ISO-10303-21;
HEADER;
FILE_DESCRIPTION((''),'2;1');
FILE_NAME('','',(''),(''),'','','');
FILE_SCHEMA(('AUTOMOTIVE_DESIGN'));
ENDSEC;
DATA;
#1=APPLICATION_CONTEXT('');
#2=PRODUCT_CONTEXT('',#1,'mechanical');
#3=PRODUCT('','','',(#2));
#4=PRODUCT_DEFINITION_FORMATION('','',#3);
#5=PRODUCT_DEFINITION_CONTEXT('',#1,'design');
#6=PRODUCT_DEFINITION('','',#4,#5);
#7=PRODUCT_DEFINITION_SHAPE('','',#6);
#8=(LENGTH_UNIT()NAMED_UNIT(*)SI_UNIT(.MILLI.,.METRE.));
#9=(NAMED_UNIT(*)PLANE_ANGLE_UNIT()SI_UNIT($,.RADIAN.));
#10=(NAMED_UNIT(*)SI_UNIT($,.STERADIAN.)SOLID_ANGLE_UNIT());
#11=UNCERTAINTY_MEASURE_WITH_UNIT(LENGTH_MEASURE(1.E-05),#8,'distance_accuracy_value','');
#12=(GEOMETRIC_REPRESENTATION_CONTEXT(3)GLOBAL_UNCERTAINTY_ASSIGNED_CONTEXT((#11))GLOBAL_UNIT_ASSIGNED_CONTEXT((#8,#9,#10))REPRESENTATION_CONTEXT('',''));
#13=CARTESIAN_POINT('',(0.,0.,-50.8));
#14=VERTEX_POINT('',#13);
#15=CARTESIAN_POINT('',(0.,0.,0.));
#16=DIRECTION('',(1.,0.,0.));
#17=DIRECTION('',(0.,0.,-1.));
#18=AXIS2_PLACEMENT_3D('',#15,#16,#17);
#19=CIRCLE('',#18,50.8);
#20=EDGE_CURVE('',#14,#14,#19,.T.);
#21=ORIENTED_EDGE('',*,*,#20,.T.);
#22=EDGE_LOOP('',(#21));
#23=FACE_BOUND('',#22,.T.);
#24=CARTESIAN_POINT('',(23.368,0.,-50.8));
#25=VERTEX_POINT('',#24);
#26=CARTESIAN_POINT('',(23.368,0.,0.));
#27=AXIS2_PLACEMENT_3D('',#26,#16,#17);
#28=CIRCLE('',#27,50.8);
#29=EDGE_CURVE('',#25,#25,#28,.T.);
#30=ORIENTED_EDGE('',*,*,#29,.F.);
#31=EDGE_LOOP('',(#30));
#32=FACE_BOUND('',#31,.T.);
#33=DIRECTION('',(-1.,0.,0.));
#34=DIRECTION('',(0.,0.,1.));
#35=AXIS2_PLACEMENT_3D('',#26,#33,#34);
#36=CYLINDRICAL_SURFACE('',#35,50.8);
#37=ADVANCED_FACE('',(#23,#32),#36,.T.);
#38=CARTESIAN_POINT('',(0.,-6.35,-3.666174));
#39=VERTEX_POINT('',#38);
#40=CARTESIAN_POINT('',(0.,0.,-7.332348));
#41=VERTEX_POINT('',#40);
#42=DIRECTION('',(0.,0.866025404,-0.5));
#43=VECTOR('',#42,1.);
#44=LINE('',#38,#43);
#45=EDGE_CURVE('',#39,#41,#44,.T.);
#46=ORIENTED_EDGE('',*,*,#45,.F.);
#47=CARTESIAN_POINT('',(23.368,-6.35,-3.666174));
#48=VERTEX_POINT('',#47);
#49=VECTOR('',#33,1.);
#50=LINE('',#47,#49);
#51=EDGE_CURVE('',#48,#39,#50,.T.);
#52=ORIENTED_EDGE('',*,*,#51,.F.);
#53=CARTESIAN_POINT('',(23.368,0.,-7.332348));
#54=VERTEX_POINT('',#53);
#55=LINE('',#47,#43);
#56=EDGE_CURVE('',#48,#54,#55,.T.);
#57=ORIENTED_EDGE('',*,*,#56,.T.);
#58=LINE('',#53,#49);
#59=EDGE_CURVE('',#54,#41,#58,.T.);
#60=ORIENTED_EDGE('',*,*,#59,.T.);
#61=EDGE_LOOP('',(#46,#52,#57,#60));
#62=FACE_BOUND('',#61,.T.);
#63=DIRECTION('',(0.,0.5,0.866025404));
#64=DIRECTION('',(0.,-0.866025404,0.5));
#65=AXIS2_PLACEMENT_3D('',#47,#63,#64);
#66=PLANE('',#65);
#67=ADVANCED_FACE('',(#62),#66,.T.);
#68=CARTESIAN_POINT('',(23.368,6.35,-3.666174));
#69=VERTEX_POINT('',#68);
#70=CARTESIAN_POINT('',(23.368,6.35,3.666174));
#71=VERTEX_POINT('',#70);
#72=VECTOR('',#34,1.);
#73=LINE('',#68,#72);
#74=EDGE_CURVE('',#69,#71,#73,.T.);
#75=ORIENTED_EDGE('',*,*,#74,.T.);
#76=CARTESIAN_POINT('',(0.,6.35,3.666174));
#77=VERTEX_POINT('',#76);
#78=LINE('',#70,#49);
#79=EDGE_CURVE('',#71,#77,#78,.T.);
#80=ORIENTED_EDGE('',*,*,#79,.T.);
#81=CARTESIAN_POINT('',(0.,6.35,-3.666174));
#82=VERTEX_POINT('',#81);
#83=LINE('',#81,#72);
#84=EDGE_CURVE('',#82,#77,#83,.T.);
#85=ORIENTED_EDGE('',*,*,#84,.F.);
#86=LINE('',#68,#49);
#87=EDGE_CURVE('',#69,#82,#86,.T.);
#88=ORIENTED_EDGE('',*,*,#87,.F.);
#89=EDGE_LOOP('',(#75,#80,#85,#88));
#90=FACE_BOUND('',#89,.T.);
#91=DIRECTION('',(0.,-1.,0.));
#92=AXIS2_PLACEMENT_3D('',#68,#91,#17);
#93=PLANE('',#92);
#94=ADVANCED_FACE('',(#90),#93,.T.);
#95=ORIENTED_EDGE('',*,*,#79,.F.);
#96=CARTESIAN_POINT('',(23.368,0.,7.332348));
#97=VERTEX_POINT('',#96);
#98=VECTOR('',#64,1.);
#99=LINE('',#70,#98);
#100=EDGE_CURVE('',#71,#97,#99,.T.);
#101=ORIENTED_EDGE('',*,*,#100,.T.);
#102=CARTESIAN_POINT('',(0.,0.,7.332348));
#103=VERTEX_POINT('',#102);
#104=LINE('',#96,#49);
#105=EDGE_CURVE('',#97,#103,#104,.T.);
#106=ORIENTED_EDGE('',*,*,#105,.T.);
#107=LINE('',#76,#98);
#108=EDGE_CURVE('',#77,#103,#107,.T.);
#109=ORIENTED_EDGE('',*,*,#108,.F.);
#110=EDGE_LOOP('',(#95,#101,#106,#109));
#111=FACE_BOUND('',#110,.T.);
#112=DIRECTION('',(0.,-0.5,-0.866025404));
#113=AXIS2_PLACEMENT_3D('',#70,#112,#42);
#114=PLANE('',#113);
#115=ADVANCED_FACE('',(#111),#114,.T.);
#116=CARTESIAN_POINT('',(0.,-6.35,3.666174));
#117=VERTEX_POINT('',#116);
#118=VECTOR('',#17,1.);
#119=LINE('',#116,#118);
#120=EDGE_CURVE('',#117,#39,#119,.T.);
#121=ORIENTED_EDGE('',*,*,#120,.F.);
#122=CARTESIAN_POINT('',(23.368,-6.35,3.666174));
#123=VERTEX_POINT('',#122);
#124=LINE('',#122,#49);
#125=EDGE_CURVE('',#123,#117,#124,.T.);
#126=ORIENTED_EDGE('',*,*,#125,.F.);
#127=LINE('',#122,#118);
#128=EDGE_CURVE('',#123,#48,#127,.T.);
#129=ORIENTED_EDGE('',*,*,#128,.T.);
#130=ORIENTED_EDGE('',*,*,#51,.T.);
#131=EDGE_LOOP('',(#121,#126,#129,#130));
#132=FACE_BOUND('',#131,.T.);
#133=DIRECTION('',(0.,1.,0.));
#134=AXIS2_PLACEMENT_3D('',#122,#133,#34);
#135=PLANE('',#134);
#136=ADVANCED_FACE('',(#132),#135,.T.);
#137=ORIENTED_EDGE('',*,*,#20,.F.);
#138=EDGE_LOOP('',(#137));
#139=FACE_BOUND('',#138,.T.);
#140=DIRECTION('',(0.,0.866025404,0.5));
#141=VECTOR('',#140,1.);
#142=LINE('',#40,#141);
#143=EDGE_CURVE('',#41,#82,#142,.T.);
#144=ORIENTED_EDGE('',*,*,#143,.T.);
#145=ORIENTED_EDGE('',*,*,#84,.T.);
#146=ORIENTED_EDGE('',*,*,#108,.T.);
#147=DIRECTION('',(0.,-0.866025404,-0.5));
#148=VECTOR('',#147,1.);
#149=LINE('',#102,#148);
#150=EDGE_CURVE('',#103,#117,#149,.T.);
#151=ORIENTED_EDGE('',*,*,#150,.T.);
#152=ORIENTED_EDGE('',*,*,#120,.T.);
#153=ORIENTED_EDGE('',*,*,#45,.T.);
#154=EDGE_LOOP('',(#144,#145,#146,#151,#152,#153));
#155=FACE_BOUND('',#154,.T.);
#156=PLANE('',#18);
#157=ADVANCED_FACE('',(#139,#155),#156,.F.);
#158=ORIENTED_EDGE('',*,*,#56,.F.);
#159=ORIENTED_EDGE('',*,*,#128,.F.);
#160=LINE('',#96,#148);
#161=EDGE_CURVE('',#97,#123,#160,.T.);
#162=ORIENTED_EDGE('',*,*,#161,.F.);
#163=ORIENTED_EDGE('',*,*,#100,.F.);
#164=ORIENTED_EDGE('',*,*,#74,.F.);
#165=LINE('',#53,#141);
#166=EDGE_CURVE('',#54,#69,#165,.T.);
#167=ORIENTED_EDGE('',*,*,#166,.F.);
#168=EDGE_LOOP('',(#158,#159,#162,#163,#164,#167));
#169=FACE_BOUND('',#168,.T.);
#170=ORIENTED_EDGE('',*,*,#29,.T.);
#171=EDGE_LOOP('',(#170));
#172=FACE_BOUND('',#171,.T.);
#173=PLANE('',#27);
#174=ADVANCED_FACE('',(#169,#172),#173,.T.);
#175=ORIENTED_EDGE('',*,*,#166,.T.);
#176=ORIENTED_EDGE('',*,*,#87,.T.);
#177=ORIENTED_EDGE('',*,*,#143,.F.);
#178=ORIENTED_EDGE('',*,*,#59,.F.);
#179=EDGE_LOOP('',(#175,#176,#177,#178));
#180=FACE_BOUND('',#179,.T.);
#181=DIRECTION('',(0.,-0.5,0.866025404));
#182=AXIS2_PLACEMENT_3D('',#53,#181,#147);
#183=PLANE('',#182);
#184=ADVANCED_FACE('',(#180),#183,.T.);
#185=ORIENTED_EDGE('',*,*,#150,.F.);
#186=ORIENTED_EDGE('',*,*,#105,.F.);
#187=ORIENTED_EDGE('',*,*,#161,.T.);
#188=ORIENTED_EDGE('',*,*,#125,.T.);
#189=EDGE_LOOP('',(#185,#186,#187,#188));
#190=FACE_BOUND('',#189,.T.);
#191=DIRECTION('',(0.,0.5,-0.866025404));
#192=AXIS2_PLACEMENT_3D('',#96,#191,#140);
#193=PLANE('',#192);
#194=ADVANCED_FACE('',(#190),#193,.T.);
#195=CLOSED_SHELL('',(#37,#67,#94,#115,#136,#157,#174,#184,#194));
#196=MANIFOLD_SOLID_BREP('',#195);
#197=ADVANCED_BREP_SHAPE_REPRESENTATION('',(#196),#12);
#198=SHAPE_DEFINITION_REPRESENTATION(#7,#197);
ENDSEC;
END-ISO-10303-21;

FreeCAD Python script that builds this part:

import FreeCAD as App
import Part
import Sketcher
from FreeCAD import Vector
Q = App.Units.Quantity


def add_polygon(sketch, points):
    """Adds a closed chain of lines whose ends are joined by coincident constraints."""
    first, n = sketch.GeometryCount, len(points)
    for a, b in zip(points, points[1:] + points[:1]):
        sketch.addGeometry(Part.LineSegment(App.Vector(*a, 0), App.Vector(*b, 0)), False)
    for i in range(n):
        sketch.addConstraint(Sketcher.Constraint("Coincident", first + i, 2, first + (i + 1) % n, 1))

doc = App.newDocument("Part")
body = doc.addObject("PartDesign::Body", "Body")

# Sketch on YZ plane
sketch1 = body.newObject("Sketcher::SketchObject", "Sketch")
sketch1.AttachmentSupport = (doc.getObject("YZ_Plane"), [""])
sketch1.MapMode = "FlatFace"
sketch1.addGeometry(Part.Circle(Vector(0, 0, 0), Vector(0, 0, 1), 50.8), False)  # 0
add_polygon(sketch1, [(6.35, 3.666174), (6.35, -3.666174), (0, -7.332348), (-6.35, -3.666174), (-6.35, 3.666174), (0, 7.332348)])  # lines 1-6
sketch1.addConstraint([
    Sketcher.Constraint("Vertical", 1),
    Sketcher.Constraint("Vertical", 4),
    Sketcher.Constraint("Coincident", 0, 3, -1, 1),
    Sketcher.Constraint("Symmetric", 1, 2, 4, 2, -1, 1),
    Sketcher.Constraint("Symmetric", 2, 2, 5, 2, -1, 1),
    Sketcher.Constraint("PointOnObject", 2, 2, -2),
    Sketcher.Constraint("Parallel", 3, 6),
    Sketcher.Constraint("Horizontal", 1, 2, 3, 2),
    Sketcher.Constraint("Diameter", 0, Q("4 in")),
    Sketcher.Constraint("Angle", 2, Q("-150 deg")),
    Sketcher.Constraint("DistanceX", 3, 2, 1, 2, Q("0.5 in")),
    Sketcher.Constraint("DistanceY", 1, 2, 1, 1, Q("7.332348 mm")),
])
pad1 = body.newObject("PartDesign::Pad", "Pad")
pad1.Profile = sketch1
pad1.Length = Q("0.92 in")

doc.recompute()
